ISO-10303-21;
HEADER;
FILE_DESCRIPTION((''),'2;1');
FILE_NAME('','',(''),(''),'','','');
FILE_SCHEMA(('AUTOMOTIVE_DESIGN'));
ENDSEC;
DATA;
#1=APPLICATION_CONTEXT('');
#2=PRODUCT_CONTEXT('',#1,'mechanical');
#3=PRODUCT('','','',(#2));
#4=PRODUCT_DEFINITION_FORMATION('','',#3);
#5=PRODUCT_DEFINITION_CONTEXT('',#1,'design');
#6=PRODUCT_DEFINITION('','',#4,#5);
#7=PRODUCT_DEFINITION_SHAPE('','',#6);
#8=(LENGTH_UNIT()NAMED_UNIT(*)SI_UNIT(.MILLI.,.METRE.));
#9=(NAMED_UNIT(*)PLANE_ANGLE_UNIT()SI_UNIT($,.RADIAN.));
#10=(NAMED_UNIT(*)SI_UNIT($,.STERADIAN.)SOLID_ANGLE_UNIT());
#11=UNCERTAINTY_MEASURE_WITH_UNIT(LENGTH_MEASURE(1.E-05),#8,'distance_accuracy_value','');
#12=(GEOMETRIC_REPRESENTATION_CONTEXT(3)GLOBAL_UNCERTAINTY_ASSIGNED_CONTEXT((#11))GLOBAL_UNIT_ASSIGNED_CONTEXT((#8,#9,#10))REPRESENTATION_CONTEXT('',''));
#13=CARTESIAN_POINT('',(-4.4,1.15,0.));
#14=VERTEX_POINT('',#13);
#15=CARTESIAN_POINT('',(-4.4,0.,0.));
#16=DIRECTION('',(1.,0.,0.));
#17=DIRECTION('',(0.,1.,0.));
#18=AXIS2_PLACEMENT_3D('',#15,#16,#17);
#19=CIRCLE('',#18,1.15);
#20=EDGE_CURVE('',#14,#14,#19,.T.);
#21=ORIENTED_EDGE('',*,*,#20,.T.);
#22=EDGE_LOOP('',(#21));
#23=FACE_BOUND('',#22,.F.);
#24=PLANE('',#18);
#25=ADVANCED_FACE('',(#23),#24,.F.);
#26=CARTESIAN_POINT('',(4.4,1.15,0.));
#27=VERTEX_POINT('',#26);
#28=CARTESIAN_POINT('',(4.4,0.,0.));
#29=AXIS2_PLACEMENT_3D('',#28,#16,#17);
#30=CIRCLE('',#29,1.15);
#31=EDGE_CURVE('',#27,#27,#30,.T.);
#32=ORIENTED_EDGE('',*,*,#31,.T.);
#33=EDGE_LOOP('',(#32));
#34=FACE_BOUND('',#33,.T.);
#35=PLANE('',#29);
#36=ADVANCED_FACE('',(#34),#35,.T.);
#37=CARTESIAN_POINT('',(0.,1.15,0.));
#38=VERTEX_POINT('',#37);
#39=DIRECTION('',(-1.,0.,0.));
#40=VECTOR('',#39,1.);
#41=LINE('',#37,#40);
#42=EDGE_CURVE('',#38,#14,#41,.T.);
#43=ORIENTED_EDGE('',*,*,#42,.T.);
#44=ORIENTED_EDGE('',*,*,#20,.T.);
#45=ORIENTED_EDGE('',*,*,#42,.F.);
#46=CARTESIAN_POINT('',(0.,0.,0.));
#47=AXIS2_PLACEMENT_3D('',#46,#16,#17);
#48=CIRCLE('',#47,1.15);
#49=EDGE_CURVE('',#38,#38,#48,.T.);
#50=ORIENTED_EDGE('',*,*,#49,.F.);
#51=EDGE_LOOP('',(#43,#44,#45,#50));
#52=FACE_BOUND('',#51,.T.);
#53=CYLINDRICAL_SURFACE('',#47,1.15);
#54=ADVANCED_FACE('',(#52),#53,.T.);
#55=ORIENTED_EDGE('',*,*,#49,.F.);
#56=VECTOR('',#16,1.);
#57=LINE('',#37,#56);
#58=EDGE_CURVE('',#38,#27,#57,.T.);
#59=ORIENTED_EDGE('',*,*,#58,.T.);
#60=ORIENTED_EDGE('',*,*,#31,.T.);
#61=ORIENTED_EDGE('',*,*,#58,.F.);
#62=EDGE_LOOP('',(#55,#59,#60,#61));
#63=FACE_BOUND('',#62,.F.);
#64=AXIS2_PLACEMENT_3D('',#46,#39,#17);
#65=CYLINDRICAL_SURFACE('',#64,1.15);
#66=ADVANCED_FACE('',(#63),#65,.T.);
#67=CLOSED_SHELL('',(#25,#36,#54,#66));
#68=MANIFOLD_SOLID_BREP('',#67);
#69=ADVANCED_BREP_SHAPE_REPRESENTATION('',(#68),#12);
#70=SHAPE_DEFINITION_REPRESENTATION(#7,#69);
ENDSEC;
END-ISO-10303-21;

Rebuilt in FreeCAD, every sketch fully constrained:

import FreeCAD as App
import Part
import Sketcher

V = App.Vector

doc = App.newDocument("Part")
body = doc.addObject("PartDesign::Body", "Body")

# Sketch on YZ plane
sketch1 = body.newObject("Sketcher::SketchObject", "Sketch")
sketch1.AttachmentSupport = (doc.getObject("YZ_Plane"), [""])
sketch1.MapMode = "FlatFace"
sketch1.addGeometry(Part.Circle(V(0, 0, 0), V(0, 0, 1), 1.1), False)
sketch1.addConstraint(Sketcher.Constraint("Coincident", 0, 3, -1, 1))
sketch1.addConstraint(Sketcher.Constraint("Diameter", 0, 2.3))
pad1 = body.newObject("PartDesign::Pad", "Pad")
pad1.Profile = sketch1
pad1.Length = 8.8
pad1.Midplane = True

doc.recompute()
